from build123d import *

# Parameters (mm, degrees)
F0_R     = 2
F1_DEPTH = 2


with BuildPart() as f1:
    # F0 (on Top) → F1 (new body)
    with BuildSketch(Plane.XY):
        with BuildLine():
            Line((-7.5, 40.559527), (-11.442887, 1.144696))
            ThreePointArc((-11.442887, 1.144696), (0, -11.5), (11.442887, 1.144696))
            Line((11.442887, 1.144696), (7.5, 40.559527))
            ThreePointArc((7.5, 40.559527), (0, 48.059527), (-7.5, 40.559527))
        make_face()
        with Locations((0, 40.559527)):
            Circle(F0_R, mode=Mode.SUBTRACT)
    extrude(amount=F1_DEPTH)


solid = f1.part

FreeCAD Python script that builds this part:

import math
import FreeCAD as App
import Part
import Sketcher
from FreeCAD import Vector

doc = App.newDocument("Part")
params = doc.addObject("Spreadsheet::Sheet", "Params")
for row, (alias, value) in enumerate([
    ("sketch1_diameter", "4 mm"),
    ("sketch1_radius", "11.5 mm"),
    ("sketch1_radius2", "7.5 mm"),
    ("pad1_length", "2 mm"),
], start=1):
    params.set(f"A{row}", alias)
    params.set(f"B{row}", "=" + value)
    params.setAlias(f"B{row}", alias)

body = doc.addObject("PartDesign::Body", "Body")

sketch1 = body.newObject("Sketcher::SketchObject", "Sketch")
sketch1.AttachmentSupport = (doc.getObject("XY_Plane"), [""])
sketch1.MapMode = "FlatFace"
sketch1.addGeometry([
    Part.LineSegment(Vector(-7.5, 40.6, 0), Vector(-11.4, 1.1, 0)),
    Part.ArcOfCircle(Part.Circle(Vector(0, 0, 0), Vector(0, 0, 1), 11.5), math.radians(174), math.radians(366)),
    Part.LineSegment(Vector(11.4, 1.1, 0), Vector(7.5, 40.6, 0)),
    Part.ArcOfCircle(Part.Circle(Vector(0, 40.6, 0), Vector(0, 0, 1), 7.5), math.radians(0), math.radians(180)),
    Part.Circle(Vector(0, 40.6, 0), Vector(0, 0, 1), 2),
], False)
sketch1.addConstraint([
    Sketcher.Constraint("Tangent", 0, 2, 1, 1),
    Sketcher.Constraint("Tangent", 1, 2, 2, 1),
    Sketcher.Constraint("Coincident", 2, 2, 3, 1),
    Sketcher.Constraint("Coincident", 3, 2, 0, 1),
    Sketcher.Constraint("Coincident", 1, 3, -1, 1),
    Sketcher.Constraint("Coincident", 4, 3, 3, 3),
    Sketcher.Constraint("Symmetric", 2, 2, 3, 2, -2),
    Sketcher.Constraint("Horizontal", 4, 3, 2, 2),
    Sketcher.Constraint("Diameter", 4, 4.0),
    Sketcher.Constraint("Radius", 1, 11.5),
    Sketcher.Constraint("Radius", 3, 7.5),
    Sketcher.Constraint("DistanceY", 0, 2, 3, 3, 39.414831),
])
sketch1.setExpression("Constraints[8]", "Params.sketch1_diameter")
sketch1.setExpression("Constraints[9]", "Params.sketch1_radius")
sketch1.setExpression("Constraints[10]", "Params.sketch1_radius2")
pad1 = body.newObject("PartDesign::Pad", "Pad")
pad1.Profile = sketch1
pad1.setExpression("Length", "Params.pad1_length")

doc.recompute()
